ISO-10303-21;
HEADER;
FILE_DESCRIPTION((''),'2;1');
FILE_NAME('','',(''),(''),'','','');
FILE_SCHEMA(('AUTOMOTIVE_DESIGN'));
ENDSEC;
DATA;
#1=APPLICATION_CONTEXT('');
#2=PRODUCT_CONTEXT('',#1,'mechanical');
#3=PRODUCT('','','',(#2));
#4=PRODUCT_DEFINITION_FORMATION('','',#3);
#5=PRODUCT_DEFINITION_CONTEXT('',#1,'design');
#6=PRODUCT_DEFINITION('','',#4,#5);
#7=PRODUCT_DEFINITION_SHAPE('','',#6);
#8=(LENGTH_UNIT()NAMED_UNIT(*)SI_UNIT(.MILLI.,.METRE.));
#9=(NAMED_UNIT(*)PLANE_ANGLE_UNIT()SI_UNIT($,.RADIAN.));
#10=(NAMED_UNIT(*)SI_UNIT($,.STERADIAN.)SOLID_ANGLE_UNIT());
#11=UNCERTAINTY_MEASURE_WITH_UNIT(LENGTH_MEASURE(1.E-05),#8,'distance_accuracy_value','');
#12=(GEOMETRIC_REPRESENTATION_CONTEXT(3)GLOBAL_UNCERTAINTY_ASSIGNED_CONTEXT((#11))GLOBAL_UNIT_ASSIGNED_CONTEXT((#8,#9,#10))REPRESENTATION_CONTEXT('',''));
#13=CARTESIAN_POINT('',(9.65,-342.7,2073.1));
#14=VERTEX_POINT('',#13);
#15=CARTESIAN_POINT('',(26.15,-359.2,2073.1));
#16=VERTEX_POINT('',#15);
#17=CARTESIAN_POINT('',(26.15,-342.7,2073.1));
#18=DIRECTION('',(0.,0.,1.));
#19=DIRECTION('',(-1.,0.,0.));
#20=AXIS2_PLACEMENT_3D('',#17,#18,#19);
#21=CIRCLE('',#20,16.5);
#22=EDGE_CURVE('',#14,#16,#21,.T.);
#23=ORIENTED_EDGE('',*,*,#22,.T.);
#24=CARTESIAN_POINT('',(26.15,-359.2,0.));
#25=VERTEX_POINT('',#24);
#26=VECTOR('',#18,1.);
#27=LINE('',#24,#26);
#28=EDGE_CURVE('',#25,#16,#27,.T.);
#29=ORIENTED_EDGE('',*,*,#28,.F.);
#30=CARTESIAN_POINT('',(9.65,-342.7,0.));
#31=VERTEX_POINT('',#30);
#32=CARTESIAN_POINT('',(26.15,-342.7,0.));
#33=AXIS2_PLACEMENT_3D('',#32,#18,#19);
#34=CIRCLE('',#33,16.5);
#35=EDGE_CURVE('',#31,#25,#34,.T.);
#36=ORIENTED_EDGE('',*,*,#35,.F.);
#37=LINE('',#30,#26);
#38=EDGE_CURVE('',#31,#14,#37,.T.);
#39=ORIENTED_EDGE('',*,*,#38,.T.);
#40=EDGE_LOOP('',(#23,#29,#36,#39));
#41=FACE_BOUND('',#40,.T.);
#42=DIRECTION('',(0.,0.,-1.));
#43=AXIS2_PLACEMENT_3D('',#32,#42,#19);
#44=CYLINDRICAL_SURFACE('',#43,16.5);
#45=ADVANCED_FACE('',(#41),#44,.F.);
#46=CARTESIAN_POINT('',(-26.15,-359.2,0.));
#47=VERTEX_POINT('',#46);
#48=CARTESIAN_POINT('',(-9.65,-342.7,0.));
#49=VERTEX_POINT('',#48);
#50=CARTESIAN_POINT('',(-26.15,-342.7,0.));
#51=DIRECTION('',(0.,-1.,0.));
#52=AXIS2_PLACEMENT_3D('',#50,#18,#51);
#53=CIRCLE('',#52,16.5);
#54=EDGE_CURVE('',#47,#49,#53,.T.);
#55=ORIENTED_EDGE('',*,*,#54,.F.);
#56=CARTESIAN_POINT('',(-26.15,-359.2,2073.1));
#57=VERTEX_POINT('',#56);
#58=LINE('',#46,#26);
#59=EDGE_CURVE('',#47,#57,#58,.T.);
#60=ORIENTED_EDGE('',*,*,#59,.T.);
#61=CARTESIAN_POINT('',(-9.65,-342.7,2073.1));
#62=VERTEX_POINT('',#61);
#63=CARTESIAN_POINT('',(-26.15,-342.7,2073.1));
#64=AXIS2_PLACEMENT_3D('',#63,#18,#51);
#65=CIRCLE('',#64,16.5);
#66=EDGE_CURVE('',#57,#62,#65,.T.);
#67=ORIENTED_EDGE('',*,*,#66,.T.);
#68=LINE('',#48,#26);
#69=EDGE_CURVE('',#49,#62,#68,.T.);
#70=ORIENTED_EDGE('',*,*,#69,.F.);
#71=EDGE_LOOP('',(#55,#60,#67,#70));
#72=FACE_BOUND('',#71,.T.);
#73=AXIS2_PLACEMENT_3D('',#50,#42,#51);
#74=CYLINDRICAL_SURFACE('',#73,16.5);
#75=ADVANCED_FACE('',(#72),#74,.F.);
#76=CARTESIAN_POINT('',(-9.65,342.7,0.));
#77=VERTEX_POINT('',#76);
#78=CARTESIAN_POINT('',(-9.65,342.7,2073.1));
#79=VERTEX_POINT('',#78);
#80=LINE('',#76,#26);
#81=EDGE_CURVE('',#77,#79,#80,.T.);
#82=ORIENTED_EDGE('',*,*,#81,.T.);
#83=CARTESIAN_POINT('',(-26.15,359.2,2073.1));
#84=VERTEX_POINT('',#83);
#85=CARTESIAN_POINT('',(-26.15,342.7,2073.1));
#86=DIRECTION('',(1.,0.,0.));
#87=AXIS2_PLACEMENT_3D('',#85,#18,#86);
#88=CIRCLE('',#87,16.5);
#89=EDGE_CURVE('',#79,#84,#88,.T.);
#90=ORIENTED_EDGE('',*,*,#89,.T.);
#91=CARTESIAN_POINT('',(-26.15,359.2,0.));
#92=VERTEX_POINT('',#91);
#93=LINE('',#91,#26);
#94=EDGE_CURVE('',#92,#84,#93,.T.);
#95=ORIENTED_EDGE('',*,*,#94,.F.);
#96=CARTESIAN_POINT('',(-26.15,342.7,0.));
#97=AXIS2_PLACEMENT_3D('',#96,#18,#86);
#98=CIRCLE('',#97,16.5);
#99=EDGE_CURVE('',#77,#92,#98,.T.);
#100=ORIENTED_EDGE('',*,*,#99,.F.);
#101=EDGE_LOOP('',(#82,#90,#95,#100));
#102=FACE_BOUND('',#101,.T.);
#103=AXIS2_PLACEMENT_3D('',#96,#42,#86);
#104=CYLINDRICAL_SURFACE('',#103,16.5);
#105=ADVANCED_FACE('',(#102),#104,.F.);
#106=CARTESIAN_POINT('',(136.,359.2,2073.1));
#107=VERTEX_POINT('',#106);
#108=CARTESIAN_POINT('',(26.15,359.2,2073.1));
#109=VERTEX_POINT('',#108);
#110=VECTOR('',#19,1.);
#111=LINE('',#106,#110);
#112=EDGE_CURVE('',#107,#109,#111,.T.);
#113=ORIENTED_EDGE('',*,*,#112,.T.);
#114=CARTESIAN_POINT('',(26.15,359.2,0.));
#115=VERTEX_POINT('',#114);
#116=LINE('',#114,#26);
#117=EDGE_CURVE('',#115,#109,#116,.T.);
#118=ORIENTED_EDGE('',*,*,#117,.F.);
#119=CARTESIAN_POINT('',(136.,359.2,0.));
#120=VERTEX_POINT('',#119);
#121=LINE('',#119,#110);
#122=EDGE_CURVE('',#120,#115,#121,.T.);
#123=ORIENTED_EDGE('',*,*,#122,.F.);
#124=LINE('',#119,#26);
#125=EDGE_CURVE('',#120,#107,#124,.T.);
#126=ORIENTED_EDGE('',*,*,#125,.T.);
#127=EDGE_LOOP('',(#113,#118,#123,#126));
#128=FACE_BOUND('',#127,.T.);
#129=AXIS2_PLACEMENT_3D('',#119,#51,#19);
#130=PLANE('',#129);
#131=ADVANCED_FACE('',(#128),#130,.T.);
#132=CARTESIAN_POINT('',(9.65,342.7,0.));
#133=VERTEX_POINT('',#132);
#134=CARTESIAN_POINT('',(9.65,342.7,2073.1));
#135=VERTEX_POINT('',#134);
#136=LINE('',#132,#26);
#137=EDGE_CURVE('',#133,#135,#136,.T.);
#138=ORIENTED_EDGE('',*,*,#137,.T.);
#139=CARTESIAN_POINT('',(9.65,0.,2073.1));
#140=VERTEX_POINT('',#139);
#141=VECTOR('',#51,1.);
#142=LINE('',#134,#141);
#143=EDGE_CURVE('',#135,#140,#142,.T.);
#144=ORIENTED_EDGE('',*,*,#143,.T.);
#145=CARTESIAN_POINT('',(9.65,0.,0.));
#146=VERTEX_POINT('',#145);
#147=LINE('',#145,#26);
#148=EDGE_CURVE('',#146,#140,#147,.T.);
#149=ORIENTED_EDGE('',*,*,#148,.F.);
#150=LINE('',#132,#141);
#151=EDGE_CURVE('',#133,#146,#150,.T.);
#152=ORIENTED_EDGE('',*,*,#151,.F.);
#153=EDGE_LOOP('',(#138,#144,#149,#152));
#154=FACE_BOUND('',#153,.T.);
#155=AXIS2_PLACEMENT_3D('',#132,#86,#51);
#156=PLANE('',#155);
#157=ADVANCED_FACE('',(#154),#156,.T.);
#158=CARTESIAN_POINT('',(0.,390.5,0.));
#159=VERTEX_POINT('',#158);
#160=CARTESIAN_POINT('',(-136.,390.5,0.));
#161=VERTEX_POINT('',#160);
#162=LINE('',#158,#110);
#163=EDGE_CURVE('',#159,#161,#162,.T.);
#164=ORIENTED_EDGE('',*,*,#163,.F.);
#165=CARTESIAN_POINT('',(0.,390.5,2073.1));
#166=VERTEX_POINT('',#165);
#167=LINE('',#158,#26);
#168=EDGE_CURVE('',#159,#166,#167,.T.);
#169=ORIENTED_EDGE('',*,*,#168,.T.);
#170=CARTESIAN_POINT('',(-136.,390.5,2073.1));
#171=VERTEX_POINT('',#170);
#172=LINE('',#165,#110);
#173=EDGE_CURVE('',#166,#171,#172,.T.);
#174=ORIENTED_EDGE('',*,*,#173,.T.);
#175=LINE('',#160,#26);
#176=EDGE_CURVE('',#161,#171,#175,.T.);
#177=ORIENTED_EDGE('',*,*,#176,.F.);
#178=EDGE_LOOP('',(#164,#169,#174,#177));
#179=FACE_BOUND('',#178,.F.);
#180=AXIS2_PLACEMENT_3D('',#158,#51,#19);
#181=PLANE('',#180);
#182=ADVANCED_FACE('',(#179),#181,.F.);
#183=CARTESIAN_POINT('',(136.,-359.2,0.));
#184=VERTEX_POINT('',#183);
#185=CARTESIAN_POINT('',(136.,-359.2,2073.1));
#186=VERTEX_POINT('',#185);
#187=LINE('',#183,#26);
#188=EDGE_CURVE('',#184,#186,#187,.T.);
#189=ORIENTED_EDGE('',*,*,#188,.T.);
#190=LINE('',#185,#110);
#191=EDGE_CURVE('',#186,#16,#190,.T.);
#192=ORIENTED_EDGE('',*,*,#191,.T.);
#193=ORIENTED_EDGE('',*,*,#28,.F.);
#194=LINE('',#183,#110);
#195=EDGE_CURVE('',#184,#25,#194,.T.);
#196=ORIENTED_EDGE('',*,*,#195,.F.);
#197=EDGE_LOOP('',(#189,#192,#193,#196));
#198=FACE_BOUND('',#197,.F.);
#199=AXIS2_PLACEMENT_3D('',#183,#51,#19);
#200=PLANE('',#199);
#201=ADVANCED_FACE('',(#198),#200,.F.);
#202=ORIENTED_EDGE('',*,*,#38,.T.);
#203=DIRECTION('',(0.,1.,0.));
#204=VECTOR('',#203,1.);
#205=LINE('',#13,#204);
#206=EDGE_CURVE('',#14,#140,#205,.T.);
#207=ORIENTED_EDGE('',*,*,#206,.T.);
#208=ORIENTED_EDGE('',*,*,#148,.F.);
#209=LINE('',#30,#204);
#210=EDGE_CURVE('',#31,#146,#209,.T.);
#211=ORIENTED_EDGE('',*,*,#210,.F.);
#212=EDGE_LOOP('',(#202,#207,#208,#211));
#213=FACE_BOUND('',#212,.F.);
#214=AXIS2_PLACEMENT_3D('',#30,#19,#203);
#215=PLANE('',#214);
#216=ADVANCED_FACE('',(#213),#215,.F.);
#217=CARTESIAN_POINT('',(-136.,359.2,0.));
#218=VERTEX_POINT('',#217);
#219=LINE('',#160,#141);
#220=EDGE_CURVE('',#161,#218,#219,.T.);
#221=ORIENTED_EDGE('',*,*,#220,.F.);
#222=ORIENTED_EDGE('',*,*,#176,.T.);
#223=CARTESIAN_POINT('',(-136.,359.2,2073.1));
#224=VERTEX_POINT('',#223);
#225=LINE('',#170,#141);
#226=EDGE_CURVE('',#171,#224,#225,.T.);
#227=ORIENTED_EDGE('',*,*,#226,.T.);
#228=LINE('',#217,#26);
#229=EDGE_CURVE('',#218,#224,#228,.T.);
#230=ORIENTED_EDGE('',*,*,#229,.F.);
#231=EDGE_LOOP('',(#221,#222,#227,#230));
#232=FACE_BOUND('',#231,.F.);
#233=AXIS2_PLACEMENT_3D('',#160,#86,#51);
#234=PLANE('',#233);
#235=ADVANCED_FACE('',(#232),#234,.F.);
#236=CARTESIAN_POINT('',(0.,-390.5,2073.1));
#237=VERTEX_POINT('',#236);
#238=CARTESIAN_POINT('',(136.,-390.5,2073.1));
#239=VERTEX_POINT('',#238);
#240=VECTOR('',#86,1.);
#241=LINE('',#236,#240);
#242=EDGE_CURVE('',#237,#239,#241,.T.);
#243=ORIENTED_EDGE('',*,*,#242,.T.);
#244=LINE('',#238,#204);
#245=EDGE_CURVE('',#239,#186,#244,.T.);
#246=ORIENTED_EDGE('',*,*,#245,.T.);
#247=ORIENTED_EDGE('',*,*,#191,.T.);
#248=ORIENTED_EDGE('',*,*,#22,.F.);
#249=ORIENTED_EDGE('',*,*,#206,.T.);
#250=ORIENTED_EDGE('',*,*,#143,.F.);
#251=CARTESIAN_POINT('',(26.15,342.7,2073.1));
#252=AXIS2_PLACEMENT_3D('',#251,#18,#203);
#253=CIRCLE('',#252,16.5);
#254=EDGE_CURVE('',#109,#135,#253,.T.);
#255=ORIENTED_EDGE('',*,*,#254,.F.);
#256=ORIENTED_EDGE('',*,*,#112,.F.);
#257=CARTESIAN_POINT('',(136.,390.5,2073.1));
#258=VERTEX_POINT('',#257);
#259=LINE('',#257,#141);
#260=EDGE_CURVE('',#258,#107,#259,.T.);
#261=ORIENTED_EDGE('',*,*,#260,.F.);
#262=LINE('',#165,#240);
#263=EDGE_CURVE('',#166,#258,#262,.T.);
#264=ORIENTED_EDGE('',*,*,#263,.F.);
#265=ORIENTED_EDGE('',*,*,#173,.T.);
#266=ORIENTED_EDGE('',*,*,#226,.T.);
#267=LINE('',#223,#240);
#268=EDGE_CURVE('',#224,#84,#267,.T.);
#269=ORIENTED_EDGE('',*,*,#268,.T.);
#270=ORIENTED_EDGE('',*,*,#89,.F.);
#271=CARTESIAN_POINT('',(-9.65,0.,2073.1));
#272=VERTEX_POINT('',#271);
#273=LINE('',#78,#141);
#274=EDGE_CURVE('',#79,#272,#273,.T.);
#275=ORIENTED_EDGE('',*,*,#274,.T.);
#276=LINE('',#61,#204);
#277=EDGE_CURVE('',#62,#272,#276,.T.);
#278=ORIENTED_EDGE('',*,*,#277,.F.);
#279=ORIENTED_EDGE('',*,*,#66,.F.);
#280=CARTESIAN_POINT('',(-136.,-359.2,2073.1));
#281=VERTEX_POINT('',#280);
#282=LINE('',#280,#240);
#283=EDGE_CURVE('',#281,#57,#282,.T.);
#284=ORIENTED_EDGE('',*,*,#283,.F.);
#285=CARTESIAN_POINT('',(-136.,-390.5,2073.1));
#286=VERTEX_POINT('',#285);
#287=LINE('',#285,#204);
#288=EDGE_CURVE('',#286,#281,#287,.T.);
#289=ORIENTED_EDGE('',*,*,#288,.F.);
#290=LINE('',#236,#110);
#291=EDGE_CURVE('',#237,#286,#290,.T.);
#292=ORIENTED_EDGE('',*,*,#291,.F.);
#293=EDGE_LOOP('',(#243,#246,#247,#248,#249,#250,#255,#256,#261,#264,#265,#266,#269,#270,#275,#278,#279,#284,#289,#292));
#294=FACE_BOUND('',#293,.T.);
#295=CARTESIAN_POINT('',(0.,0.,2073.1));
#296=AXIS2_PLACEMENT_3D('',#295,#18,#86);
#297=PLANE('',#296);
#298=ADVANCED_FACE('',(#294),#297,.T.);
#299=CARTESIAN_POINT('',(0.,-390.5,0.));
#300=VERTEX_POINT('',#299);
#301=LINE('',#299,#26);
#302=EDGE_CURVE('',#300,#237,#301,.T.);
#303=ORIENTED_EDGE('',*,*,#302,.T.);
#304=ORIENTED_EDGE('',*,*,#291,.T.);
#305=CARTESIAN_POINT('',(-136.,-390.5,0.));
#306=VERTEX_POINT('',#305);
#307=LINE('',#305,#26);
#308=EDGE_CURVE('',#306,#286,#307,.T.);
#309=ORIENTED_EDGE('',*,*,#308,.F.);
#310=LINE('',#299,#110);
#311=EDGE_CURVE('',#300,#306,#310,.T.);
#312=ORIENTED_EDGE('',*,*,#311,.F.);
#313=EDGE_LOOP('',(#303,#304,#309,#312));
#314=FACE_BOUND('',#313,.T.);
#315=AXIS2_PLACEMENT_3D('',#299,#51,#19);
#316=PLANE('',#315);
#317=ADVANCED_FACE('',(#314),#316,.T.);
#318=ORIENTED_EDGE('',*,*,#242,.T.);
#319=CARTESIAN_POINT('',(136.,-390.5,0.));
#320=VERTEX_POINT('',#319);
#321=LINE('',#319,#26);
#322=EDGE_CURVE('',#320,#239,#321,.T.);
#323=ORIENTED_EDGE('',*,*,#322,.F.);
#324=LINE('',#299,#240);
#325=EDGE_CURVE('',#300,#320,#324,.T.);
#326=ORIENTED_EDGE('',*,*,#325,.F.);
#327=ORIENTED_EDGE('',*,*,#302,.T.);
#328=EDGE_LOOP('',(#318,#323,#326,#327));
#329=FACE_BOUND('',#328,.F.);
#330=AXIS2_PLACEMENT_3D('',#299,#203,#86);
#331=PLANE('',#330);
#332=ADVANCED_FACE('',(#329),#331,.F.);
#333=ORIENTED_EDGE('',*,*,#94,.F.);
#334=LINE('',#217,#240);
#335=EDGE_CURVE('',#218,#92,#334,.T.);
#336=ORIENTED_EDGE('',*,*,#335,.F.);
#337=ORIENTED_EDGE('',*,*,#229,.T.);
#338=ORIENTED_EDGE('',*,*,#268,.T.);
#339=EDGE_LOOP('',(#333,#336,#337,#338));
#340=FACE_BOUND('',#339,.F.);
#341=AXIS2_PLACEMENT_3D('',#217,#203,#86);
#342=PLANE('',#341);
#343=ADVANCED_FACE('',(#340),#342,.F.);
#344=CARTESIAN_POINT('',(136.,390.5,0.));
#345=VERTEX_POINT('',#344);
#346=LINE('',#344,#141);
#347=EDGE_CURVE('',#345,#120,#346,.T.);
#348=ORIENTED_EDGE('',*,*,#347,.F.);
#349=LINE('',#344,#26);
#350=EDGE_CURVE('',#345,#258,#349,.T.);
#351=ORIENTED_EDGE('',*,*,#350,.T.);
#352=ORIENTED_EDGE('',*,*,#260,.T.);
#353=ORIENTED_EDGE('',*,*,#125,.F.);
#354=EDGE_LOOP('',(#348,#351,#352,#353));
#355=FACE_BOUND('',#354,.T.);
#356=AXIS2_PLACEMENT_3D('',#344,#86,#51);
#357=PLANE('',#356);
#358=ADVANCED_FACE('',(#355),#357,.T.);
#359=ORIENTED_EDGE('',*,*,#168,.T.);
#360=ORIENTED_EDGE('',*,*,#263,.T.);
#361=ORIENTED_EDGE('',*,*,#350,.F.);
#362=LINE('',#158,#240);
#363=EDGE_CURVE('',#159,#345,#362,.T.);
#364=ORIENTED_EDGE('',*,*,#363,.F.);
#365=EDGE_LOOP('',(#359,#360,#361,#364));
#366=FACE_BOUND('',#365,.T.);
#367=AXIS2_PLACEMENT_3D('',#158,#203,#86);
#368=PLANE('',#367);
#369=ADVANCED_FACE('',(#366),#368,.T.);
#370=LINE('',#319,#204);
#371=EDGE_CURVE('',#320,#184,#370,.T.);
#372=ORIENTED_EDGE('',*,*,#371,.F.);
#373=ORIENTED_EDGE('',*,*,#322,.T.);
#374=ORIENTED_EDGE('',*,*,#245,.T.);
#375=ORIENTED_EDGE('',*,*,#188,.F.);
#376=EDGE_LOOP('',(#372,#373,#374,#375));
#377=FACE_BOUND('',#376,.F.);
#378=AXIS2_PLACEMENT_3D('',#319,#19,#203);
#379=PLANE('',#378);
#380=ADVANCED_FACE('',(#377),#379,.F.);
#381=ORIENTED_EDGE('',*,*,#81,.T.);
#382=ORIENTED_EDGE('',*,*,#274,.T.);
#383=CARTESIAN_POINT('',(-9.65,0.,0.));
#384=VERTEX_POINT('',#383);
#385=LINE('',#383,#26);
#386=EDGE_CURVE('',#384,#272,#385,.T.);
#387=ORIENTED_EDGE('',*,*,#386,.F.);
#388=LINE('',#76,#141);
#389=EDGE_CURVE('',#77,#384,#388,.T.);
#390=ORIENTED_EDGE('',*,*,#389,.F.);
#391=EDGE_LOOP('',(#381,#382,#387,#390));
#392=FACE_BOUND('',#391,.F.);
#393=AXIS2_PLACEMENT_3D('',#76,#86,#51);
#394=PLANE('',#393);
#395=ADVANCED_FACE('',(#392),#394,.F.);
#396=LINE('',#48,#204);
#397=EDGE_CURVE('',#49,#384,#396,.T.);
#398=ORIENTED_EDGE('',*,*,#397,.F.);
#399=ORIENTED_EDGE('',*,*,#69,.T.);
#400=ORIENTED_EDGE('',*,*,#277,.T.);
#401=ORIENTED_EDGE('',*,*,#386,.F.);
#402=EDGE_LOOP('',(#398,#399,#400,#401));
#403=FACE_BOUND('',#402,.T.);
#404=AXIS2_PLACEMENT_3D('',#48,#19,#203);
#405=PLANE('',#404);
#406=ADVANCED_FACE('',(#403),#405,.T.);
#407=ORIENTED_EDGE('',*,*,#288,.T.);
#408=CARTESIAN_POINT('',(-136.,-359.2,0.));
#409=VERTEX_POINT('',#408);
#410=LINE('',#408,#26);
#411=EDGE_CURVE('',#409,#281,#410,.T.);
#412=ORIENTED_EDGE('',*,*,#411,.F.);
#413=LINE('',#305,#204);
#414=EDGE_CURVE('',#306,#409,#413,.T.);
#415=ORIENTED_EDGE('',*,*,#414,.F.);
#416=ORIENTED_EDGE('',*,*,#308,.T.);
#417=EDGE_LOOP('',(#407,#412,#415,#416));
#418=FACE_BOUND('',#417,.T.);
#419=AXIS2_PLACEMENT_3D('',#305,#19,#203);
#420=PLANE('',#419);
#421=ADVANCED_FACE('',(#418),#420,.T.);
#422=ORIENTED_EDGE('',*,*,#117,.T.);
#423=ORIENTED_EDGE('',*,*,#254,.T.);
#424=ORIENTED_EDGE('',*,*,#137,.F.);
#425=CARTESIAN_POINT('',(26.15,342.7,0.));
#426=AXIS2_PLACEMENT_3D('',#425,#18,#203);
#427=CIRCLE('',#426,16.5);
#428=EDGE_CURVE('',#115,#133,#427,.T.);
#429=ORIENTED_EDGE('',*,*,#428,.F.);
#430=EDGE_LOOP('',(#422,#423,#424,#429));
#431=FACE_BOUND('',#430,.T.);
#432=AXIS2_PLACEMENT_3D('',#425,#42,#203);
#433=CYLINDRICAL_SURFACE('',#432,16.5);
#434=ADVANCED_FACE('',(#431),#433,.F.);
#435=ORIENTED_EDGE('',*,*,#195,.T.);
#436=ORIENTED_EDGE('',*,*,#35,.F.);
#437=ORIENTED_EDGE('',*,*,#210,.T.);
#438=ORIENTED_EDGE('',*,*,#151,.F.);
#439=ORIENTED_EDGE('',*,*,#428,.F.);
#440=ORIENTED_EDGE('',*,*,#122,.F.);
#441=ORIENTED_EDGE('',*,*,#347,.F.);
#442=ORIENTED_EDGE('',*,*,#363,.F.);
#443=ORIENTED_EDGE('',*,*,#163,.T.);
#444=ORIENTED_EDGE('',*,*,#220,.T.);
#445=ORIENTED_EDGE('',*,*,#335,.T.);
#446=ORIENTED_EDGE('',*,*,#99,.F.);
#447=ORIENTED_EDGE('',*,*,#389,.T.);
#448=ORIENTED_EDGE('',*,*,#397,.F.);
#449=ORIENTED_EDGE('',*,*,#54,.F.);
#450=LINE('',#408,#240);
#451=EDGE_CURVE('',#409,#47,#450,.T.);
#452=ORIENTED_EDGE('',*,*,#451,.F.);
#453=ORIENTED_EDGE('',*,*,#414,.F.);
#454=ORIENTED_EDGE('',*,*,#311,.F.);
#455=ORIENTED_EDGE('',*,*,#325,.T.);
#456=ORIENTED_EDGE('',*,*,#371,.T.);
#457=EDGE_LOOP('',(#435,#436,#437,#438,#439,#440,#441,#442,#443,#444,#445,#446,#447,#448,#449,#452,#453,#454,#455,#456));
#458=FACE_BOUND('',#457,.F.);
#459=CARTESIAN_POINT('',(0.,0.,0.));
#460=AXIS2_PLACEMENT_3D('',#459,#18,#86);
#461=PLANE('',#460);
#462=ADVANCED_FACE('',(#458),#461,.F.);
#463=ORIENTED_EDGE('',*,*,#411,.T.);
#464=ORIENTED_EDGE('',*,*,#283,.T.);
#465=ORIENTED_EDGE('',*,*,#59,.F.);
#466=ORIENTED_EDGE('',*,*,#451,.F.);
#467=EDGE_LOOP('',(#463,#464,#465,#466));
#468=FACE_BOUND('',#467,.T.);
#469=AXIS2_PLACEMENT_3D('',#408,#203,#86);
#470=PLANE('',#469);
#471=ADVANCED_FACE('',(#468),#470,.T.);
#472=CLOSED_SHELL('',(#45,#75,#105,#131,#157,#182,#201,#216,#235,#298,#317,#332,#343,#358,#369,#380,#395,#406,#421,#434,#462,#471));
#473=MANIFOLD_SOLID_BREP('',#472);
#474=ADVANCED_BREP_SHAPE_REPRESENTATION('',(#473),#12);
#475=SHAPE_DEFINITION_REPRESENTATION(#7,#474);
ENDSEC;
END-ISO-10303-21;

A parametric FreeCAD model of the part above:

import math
import FreeCAD as App
import Part
import Sketcher

V = App.Vector
Q = App.Units.Quantity

doc = App.newDocument("Part")
body = doc.addObject("PartDesign::Body", "Body")

# Sketch on XY plane
sketch1 = body.newObject("Sketcher::SketchObject", "Sketch")
sketch1.AttachmentSupport = (doc.getObject("XY_Plane"), [""])
sketch1.MapMode = "FlatFace"
sketch1.addGeometry(Part.LineSegment(V(-136, -359, 0), V(-136, -390, 0)), False)
sketch1.addGeometry(Part.LineSegment(V(-136, -390, 0), V(136, -390, 0)), False)
sketch1.addGeometry(Part.LineSegment(V(136, -390, 0), V(136, -359, 0)), False)
sketch1.addGeometry(Part.LineSegment(V(136, -359, 0), V(26, -359, 0)), False)
sketch1.addGeometry(Part.ArcOfCircle(Part.Circle(V(26, -343, 0), V(0, 0, 1), 16), math.radians(180), math.radians(270)), False)
sketch1.addGeometry(Part.LineSegment(V(10, -343, 0), V(10, 343, 0)), False)
sketch1.addGeometry(Part.ArcOfCircle(Part.Circle(V(26, 343, 0), V(0, 0, 1), 16), math.radians(90), math.radians(180)), False)
sketch1.addGeometry(Part.LineSegment(V(26, 359, 0), V(136, 359, 0)), False)
sketch1.addGeometry(Part.LineSegment(V(136, 359, 0), V(136, 390, 0)), False)
sketch1.addGeometry(Part.LineSegment(V(136, 390, 0), V(-136, 390, 0)), False)
sketch1.addGeometry(Part.LineSegment(V(-136, 390, 0), V(-136, 359, 0)), False)
sketch1.addGeometry(Part.LineSegment(V(-136, 359, 0), V(-26, 359, 0)), False)
sketch1.addGeometry(Part.ArcOfCircle(Part.Circle(V(-26, 343, 0), V(0, 0, 1), 16), math.radians(0), math.radians(90)), False)
sketch1.addGeometry(Part.LineSegment(V(-10, 343, 0), V(-10, -343, 0)), False)
sketch1.addGeometry(Part.ArcOfCircle(Part.Circle(V(-26, -343, 0), V(0, 0, 1), 16), math.radians(-90), math.radians(0)), False)
sketch1.addGeometry(Part.LineSegment(V(-26, -359, 0), V(-136, -359, 0)), False)
sketch1.addConstraint(Sketcher.Constraint("Coincident", 0, 2, 1, 1))
sketch1.addConstraint(Sketcher.Constraint("Coincident", 1, 2, 2, 1))
sketch1.addConstraint(Sketcher.Constraint("Coincident", 2, 2, 3, 1))
sketch1.addConstraint(Sketcher.Constraint("Tangent", 3, 2, 4, 2))
sketch1.addConstraint(Sketcher.Constraint("Tangent", 4, 1, 5, 1))
sketch1.addConstraint(Sketcher.Constraint("Tangent", 5, 2, 6, 2))
sketch1.addConstraint(Sketcher.Constraint("Tangent", 6, 1, 7, 1))
sketch1.addConstraint(Sketcher.Constraint("Coincident", 7, 2, 8, 1))
sketch1.addConstraint(Sketcher.Constraint("Coincident", 8, 2, 9, 1))
sketch1.addConstraint(Sketcher.Constraint("Coincident", 9, 2, 10, 1))
sketch1.addConstraint(Sketcher.Constraint("Coincident", 10, 2, 11, 1))
sketch1.addConstraint(Sketcher.Constraint("Tangent", 11, 2, 12, 2))
sketch1.addConstraint(Sketcher.Constraint("Tangent", 12, 1, 13, 1))
sketch1.addConstraint(Sketcher.Constraint("Tangent", 13, 2, 14, 2))
sketch1.addConstraint(Sketcher.Constraint("Tangent", 14, 1, 15, 1))
sketch1.addConstraint(Sketcher.Constraint("Coincident", 15, 2, 0, 1))
sketch1.addConstraint(Sketcher.Constraint("Vertical", 0))
sketch1.addConstraint(Sketcher.Constraint("Horizontal", 1))
sketch1.addConstraint(Sketcher.Constraint("Vertical", 2))
sketch1.addConstraint(Sketcher.Constraint("Horizontal", 3))
sketch1.addConstraint(Sketcher.Constraint("Vertical", 5))
sketch1.addConstraint(Sketcher.Constraint("Horizontal", 7))
sketch1.addConstraint(Sketcher.Constraint("Vertical", 8))
sketch1.addConstraint(Sketcher.Constraint("Horizontal", 9))
sketch1.addConstraint(Sketcher.Constraint("Vertical", 10))
sketch1.addConstraint(Sketcher.Constraint("Horizontal", 11))
sketch1.addConstraint(Sketcher.Constraint("Vertical", 13))
sketch1.addConstraint(Sketcher.Constraint("Horizontal", 15))
sketch1.addConstraint(Sketcher.Constraint("Equal", 4, 6))
sketch1.addConstraint(Sketcher.Constraint("Equal", 6, 12))
sketch1.addConstraint(Sketcher.Constraint("Equal", 12, 14))
sketch1.addConstraint(Sketcher.Constraint("Symmetric", 4, 3, 12, 3, -1, 1))
sketch1.addConstraint(Sketcher.Constraint("Symmetric", 0, 2, 8, 2, -1, 1))
sketch1.addConstraint(Sketcher.Constraint("Symmetric", 7, 2, 10, 2, -2))
sketch1.addConstraint(Sketcher.Constraint("Symmetric", 2, 2, 15, 2, -2))
sketch1.addConstraint(Sketcher.Constraint("Radius", 4, Q("16.5 mm")))
sketch1.addConstraint(Sketcher.Constraint("DistanceY", 0, 2, 0, 1, Q("31.3 mm")))
sketch1.addConstraint(Sketcher.Constraint("DistanceX", 0, 2, -1, 1, Q("136 mm")))
sketch1.addConstraint(Sketcher.Constraint("DistanceY", 0, 2, -1, 1, Q("390.5 mm")))
sketch1.addConstraint(Sketcher.Constraint("DistanceX", -1, 1, 4, 1, Q("9.65 mm")))
pad1 = body.newObject("PartDesign::Pad", "Pad")
pad1.Profile = sketch1
pad1.Length = 2073.1

doc.recompute()
